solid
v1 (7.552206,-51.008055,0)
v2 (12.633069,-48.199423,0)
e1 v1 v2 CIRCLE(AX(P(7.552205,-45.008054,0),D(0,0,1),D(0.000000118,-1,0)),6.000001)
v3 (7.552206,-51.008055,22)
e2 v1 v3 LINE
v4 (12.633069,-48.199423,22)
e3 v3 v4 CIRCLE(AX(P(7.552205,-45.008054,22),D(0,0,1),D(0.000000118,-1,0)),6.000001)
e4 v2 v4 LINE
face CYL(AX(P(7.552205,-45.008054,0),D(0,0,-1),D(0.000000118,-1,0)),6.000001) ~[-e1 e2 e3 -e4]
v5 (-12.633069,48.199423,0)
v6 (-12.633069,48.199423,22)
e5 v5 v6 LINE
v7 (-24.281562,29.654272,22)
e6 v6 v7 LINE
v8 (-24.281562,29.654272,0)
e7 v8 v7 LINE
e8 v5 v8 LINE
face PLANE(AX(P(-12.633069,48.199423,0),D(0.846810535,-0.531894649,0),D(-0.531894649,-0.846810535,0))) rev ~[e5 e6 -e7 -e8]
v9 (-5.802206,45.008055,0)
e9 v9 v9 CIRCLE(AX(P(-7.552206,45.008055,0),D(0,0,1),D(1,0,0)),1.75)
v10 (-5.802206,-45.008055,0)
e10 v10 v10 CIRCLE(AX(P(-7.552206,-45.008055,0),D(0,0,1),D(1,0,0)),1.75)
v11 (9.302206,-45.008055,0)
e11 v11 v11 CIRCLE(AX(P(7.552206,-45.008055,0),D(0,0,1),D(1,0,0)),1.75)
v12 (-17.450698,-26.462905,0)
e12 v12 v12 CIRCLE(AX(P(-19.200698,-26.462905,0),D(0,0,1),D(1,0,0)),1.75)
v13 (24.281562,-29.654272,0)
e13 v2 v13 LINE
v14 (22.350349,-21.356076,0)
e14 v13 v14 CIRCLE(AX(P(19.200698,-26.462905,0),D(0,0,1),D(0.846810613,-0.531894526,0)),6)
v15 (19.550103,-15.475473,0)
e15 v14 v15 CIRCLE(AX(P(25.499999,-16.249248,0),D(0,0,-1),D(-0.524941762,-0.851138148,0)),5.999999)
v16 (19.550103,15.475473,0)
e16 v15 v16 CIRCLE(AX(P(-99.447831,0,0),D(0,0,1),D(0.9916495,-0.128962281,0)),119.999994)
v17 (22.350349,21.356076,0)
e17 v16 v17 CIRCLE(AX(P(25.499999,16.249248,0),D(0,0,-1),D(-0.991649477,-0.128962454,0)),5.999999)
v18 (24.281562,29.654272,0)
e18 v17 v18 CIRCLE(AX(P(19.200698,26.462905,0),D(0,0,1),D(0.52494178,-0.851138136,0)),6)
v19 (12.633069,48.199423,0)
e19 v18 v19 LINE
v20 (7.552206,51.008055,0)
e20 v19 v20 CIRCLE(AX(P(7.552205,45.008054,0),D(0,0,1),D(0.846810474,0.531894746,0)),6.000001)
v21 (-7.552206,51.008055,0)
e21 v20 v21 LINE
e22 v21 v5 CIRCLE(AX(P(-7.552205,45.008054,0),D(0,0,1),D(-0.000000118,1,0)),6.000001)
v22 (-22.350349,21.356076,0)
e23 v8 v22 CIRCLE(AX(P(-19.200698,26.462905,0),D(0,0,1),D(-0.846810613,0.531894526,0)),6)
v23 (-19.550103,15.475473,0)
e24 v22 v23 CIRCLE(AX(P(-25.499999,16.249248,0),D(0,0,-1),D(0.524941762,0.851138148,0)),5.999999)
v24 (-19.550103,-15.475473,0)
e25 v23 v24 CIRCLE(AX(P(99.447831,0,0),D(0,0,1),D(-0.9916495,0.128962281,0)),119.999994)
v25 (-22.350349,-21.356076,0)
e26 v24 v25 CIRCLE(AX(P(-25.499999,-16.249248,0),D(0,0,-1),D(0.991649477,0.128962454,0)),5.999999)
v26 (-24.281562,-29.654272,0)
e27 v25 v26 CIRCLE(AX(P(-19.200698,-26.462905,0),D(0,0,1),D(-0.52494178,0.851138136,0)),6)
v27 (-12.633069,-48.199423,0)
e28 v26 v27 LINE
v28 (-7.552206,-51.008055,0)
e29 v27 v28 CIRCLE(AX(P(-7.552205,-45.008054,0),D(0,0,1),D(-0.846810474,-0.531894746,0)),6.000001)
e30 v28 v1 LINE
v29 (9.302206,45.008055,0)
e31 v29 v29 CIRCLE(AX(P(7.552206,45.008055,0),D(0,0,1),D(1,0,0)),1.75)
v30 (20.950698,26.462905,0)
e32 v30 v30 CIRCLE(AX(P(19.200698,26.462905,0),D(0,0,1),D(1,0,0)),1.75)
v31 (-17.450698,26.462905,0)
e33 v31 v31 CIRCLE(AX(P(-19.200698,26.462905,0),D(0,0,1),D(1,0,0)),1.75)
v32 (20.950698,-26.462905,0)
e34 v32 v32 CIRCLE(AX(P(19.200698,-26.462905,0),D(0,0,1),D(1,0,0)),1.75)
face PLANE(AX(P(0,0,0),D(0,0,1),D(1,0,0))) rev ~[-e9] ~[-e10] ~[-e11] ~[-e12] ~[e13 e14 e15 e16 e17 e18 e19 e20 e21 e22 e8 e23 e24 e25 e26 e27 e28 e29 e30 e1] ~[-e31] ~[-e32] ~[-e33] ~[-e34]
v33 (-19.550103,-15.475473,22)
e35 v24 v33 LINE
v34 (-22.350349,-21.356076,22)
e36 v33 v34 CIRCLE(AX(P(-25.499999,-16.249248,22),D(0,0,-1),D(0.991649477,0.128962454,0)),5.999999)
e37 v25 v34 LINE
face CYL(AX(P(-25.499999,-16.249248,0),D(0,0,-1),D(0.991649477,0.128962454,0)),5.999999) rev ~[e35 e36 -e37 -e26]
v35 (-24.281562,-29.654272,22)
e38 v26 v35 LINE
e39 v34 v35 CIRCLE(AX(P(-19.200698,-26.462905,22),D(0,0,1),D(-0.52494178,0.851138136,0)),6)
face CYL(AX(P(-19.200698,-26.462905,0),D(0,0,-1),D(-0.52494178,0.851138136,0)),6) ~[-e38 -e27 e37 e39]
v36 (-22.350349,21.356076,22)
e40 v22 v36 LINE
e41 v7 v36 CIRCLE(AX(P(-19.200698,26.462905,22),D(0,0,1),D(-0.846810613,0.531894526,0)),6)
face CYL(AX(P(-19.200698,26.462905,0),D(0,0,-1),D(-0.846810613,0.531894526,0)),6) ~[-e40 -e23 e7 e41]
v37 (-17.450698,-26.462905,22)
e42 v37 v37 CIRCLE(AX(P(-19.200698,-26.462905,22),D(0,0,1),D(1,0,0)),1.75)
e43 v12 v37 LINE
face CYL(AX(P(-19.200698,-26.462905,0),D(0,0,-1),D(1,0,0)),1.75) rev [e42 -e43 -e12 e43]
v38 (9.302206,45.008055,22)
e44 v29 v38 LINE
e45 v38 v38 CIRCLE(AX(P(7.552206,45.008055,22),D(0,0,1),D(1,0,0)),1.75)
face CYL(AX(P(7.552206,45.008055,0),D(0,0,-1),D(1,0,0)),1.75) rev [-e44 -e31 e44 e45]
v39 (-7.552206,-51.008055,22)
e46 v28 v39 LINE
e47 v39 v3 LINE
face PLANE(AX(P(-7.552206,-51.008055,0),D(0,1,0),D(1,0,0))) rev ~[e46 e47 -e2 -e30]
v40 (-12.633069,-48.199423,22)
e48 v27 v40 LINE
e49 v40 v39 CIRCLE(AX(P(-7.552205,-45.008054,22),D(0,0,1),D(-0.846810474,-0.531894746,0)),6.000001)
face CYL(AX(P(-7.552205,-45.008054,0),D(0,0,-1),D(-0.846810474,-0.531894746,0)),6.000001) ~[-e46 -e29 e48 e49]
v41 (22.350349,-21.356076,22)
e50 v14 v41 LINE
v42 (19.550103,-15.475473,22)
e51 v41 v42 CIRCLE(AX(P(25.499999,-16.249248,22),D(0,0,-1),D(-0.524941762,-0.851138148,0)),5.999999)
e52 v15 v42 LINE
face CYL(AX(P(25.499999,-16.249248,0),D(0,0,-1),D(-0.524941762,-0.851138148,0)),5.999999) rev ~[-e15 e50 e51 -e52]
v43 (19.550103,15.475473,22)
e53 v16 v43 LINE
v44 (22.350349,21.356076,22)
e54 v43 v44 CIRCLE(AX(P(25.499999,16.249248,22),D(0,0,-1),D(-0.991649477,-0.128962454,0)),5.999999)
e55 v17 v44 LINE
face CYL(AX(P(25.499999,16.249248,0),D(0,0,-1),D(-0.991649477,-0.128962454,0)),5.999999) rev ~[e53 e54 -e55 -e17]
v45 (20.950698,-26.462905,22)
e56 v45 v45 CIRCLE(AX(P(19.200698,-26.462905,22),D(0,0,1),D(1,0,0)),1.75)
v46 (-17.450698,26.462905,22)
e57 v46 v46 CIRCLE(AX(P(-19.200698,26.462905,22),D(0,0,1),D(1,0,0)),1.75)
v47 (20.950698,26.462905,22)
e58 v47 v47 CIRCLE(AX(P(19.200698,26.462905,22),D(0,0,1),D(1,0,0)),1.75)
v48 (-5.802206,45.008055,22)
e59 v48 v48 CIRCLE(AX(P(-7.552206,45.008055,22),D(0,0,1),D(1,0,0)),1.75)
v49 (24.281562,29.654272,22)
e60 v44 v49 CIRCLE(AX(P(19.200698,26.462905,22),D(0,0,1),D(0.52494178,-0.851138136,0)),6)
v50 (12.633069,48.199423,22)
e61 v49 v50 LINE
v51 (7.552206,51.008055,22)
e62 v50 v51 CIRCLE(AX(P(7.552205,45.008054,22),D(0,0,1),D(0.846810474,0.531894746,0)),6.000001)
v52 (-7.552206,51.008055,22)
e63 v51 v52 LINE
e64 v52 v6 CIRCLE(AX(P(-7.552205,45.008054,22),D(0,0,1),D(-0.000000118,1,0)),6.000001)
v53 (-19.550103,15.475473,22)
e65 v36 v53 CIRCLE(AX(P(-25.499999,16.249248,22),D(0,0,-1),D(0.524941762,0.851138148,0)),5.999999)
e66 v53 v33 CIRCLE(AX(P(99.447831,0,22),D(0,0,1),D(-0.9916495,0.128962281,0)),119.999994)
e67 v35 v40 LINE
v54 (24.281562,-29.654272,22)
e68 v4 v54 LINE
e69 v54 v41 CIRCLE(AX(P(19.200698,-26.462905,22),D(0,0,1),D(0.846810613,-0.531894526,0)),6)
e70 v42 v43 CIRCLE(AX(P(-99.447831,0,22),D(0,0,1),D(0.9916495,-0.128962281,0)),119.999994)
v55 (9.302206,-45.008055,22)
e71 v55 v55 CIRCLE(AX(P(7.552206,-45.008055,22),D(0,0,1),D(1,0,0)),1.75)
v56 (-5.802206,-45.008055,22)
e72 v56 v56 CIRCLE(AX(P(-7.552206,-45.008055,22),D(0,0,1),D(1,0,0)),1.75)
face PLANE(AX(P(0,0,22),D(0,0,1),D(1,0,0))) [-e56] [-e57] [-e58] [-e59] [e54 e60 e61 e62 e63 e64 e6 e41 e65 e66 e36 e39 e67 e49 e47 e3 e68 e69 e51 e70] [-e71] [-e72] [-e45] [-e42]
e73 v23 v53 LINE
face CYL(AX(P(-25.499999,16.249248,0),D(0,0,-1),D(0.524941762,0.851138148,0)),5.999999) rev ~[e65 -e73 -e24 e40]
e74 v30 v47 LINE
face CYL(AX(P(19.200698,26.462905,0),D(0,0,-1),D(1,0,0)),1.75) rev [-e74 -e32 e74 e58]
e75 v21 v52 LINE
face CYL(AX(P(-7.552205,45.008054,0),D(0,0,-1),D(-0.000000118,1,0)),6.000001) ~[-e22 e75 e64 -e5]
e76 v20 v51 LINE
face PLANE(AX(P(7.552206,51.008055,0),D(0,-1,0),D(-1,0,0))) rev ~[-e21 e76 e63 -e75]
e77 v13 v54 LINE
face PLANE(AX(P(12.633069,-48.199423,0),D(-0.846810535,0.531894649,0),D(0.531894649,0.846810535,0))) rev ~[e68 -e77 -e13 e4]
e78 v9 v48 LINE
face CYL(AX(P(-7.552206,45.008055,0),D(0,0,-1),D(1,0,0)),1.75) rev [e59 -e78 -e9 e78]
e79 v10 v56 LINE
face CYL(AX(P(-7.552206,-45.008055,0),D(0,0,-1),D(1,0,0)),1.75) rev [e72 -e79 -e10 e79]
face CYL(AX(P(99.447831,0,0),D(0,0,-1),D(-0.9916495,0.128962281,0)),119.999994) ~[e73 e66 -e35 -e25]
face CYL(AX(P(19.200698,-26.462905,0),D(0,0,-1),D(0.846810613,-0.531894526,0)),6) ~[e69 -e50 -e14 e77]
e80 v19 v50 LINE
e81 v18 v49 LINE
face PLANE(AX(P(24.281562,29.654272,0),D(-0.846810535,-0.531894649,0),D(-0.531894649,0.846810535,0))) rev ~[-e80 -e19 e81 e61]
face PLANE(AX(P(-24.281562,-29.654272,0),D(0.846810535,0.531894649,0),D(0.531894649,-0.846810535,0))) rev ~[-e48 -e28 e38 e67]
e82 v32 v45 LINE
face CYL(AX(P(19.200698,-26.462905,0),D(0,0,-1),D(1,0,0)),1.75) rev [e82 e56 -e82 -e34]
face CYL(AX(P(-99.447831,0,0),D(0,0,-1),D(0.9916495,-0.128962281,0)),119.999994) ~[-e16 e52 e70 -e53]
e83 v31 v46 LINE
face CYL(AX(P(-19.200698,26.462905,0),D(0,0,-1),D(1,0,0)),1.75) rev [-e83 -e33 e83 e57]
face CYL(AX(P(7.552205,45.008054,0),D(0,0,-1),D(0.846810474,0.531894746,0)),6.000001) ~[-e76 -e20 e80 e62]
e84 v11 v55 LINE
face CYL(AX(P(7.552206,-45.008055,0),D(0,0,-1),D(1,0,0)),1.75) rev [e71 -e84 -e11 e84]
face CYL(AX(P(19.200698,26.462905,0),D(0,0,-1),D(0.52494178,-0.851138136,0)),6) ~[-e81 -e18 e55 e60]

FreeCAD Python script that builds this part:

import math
import FreeCAD as App
import Part
import Sketcher
from FreeCAD import Vector
Q = App.Units.Quantity

doc = App.newDocument("Part")
body = doc.addObject("PartDesign::Body", "Body")

# Sketch on XY plane
sketch1 = body.newObject("Sketcher::SketchObject", "Sketch")
sketch1.AttachmentSupport = (doc.getObject("XY_Plane"), [""])
sketch1.MapMode = "FlatFace"
sketch1.addGeometry([
    Part.ArcOfCircle(Part.Circle(Vector(-19.2, -26.5, 0), Vector(0, 0, 1), 6), math.radians(122), math.radians(212)),  # 0
    Part.LineSegment(Vector(-24.3, -29.7, 0), Vector(-12.6, -48.2, 0)),  # 1
    Part.ArcOfCircle(Part.Circle(Vector(-7.6, -45, 0), Vector(0, 0, 1), 6), math.radians(-148), math.radians(-90)),  # 2
    Part.LineSegment(Vector(-7.6, -51, 0), Vector(7.6, -51, 0)),  # 3
    Part.ArcOfCircle(Part.Circle(Vector(7.6, -45, 0), Vector(0, 0, 1), 6), math.radians(-90), math.radians(-32)),  # 4
    Part.LineSegment(Vector(12.6, -48.2, 0), Vector(24.3, -29.7, 0)),  # 5
    Part.ArcOfCircle(Part.Circle(Vector(19.2, -26.5, 0), Vector(0, 0, 1), 6), math.radians(-32), math.radians(58)),  # 6
    Part.ArcOfCircle(Part.Circle(Vector(25.5, -16.2, 0), Vector(0, 0, 1), 6), math.radians(173), math.radians(238)),  # 7
    Part.ArcOfCircle(Part.Circle(Vector(-99.4, 0, 0), Vector(0, 0, 1), 120), math.radians(-7.41), math.radians(7.41)),  # 8
    Part.ArcOfCircle(Part.Circle(Vector(25.5, 16.2, 0), Vector(0, 0, 1), 6), math.radians(122), math.radians(187)),  # 9
    Part.ArcOfCircle(Part.Circle(Vector(19.2, 26.5, 0), Vector(0, 0, 1), 6), math.radians(-58), math.radians(32)),  # 10
    Part.LineSegment(Vector(24.3, 29.7, 0), Vector(12.6, 48.2, 0)),  # 11
    Part.ArcOfCircle(Part.Circle(Vector(7.6, 45, 0), Vector(0, 0, 1), 6), math.radians(32), math.radians(90)),  # 12
    Part.LineSegment(Vector(7.6, 51, 0), Vector(-7.6, 51, 0)),  # 13
    Part.ArcOfCircle(Part.Circle(Vector(-7.6, 45, 0), Vector(0, 0, 1), 6), math.radians(90), math.radians(148)),  # 14
    Part.LineSegment(Vector(-12.6, 48.2, 0), Vector(-24.3, 29.7, 0)),  # 15
    Part.ArcOfCircle(Part.Circle(Vector(-19.2, 26.5, 0), Vector(0, 0, 1), 6), math.radians(148), math.radians(238)),  # 16
    Part.ArcOfCircle(Part.Circle(Vector(-25.5, 16.2, 0), Vector(0, 0, 1), 6), math.radians(-7), math.radians(58)),  # 17
    Part.ArcOfCircle(Part.Circle(Vector(99.4, 0, 0), Vector(0, 0, 1), 120), math.radians(172.59), math.radians(187.41)),  # 18
    Part.ArcOfCircle(Part.Circle(Vector(-25.5, -16.2, 0), Vector(0, 0, 1), 6), math.radians(-58), math.radians(7)),  # 19
    Part.Circle(Vector(-19.2, -26.5, 0), Vector(0, 0, 1), 1.8),  # 20
    Part.Circle(Vector(-7.6, -45, 0), Vector(0, 0, 1), 1.8),  # 21
    Part.Circle(Vector(7.6, -45, 0), Vector(0, 0, 1), 1.8),  # 22
    Part.Circle(Vector(19.2, -26.5, 0), Vector(0, 0, 1), 1.8),  # 23
    Part.Circle(Vector(-19.2, 26.5, 0), Vector(0, 0, 1), 1.8),  # 24
    Part.Circle(Vector(-7.6, 45, 0), Vector(0, 0, 1), 1.8),  # 25
    Part.Circle(Vector(7.6, 45, 0), Vector(0, 0, 1), 1.8),  # 26
    Part.Circle(Vector(19.2, 26.5, 0), Vector(0, 0, 1), 1.8),  # 27
], False)
sketch1.addConstraint([
    Sketcher.Constraint("Tangent", 0, 2, 1, 1),
    Sketcher.Constraint("Tangent", 1, 2, 2, 1),
    Sketcher.Constraint("Tangent", 2, 2, 3, 1),
    Sketcher.Constraint("Tangent", 3, 2, 4, 1),
    Sketcher.Constraint("Tangent", 4, 2, 5, 1),
    Sketcher.Constraint("Tangent", 5, 2, 6, 1),
    Sketcher.Constraint("Tangent", 6, 2, 7, 2),
    Sketcher.Constraint("Tangent", 7, 1, 8, 1),
    Sketcher.Constraint("Tangent", 8, 2, 9, 2),
    Sketcher.Constraint("Tangent", 9, 1, 10, 1),
    Sketcher.Constraint("Tangent", 10, 2, 11, 1),
    Sketcher.Constraint("Tangent", 11, 2, 12, 1),
    Sketcher.Constraint("Tangent", 12, 2, 13, 1),
    Sketcher.Constraint("Tangent", 13, 2, 14, 1),
    Sketcher.Constraint("Tangent", 14, 2, 15, 1),
    Sketcher.Constraint("Tangent", 15, 2, 16, 1),
    Sketcher.Constraint("Tangent", 16, 2, 17, 2),
    Sketcher.Constraint("Tangent", 17, 1, 18, 1),
    Sketcher.Constraint("Tangent", 18, 2, 19, 2),
    Sketcher.Constraint("Tangent", 19, 1, 0, 1),
    Sketcher.Constraint("Horizontal", 3),
    Sketcher.Constraint("Horizontal", 13),
    Sketcher.Constraint("Coincident", 20, 3, 0, 3),
    Sketcher.Constraint("Coincident", 21, 3, 2, 3),
    Sketcher.Constraint("Coincident", 22, 3, 4, 3),
    Sketcher.Constraint("Coincident", 23, 3, 6, 3),
    Sketcher.Constraint("Coincident", 24, 3, 16, 3),
    Sketcher.Constraint("Coincident", 25, 3, 14, 3),
    Sketcher.Constraint("Coincident", 26, 3, 12, 3),
    Sketcher.Constraint("Coincident", 27, 3, 10, 3),
    Sketcher.Constraint("Equal", 0, 2),
    Sketcher.Constraint("Equal", 2, 4),
    Sketcher.Constraint("Equal", 4, 6),
    Sketcher.Constraint("Equal", 6, 7),
    Sketcher.Constraint("Equal", 7, 9),
    Sketcher.Constraint("Equal", 9, 10),
    Sketcher.Constraint("Equal", 10, 12),
    Sketcher.Constraint("Equal", 12, 14),
    Sketcher.Constraint("Equal", 14, 16),
    Sketcher.Constraint("Equal", 16, 17),
    Sketcher.Constraint("Equal", 8, 18),
    Sketcher.Constraint("Equal", 17, 19),
    Sketcher.Constraint("Equal", 20, 21),
    Sketcher.Constraint("Equal", 21, 22),
    Sketcher.Constraint("Equal", 22, 23),
    Sketcher.Constraint("Equal", 23, 24),
    Sketcher.Constraint("Equal", 24, 25),
    Sketcher.Constraint("Equal", 25, 26),
    Sketcher.Constraint("Equal", 26, 27),
    Sketcher.Constraint("Symmetric", 0, 3, 10, 3, -1, 1),
    Sketcher.Constraint("Symmetric", 2, 3, 12, 3, -1, 1),
    Sketcher.Constraint("Symmetric", 6, 3, 16, 3, -1, 1),
    Sketcher.Constraint("Symmetric", 8, 3, 18, 3, -1, 1),
    Sketcher.Constraint("Symmetric", 0, 3, 6, 3, -2),
    Sketcher.Constraint("PointOnObject", 8, 3, -1),
    Sketcher.Constraint("Parallel", 5, 15),
    Sketcher.Constraint("Horizontal", 1, 2, 4, 2),
    Sketcher.Constraint("Radius", 0, Q("6 mm")),
    Sketcher.Constraint("Diameter", 20, Q("3.5 mm")),
    Sketcher.Constraint("Distance", 1, Q("21.9 mm")),
    Sketcher.Constraint("DistanceX", -1, 1, 7, 3, Q("25.499999 mm")),
    Sketcher.Constraint("Radius", 8, Q("119.999994 mm")),
    Sketcher.Constraint("DistanceX", 0, 3, -1, 1, Q("19.200698 mm")),
    Sketcher.Constraint("DistanceY", 4, 3, 9, 3, Q("61.257302 mm")),
    Sketcher.Constraint("DistanceY", 5, 2, 7, 1, Q("14.178799 mm")),
])
pad1 = body.newObject("PartDesign::Pad", "Pad")
pad1.Profile = sketch1
pad1.Length = 22

doc.recompute()
